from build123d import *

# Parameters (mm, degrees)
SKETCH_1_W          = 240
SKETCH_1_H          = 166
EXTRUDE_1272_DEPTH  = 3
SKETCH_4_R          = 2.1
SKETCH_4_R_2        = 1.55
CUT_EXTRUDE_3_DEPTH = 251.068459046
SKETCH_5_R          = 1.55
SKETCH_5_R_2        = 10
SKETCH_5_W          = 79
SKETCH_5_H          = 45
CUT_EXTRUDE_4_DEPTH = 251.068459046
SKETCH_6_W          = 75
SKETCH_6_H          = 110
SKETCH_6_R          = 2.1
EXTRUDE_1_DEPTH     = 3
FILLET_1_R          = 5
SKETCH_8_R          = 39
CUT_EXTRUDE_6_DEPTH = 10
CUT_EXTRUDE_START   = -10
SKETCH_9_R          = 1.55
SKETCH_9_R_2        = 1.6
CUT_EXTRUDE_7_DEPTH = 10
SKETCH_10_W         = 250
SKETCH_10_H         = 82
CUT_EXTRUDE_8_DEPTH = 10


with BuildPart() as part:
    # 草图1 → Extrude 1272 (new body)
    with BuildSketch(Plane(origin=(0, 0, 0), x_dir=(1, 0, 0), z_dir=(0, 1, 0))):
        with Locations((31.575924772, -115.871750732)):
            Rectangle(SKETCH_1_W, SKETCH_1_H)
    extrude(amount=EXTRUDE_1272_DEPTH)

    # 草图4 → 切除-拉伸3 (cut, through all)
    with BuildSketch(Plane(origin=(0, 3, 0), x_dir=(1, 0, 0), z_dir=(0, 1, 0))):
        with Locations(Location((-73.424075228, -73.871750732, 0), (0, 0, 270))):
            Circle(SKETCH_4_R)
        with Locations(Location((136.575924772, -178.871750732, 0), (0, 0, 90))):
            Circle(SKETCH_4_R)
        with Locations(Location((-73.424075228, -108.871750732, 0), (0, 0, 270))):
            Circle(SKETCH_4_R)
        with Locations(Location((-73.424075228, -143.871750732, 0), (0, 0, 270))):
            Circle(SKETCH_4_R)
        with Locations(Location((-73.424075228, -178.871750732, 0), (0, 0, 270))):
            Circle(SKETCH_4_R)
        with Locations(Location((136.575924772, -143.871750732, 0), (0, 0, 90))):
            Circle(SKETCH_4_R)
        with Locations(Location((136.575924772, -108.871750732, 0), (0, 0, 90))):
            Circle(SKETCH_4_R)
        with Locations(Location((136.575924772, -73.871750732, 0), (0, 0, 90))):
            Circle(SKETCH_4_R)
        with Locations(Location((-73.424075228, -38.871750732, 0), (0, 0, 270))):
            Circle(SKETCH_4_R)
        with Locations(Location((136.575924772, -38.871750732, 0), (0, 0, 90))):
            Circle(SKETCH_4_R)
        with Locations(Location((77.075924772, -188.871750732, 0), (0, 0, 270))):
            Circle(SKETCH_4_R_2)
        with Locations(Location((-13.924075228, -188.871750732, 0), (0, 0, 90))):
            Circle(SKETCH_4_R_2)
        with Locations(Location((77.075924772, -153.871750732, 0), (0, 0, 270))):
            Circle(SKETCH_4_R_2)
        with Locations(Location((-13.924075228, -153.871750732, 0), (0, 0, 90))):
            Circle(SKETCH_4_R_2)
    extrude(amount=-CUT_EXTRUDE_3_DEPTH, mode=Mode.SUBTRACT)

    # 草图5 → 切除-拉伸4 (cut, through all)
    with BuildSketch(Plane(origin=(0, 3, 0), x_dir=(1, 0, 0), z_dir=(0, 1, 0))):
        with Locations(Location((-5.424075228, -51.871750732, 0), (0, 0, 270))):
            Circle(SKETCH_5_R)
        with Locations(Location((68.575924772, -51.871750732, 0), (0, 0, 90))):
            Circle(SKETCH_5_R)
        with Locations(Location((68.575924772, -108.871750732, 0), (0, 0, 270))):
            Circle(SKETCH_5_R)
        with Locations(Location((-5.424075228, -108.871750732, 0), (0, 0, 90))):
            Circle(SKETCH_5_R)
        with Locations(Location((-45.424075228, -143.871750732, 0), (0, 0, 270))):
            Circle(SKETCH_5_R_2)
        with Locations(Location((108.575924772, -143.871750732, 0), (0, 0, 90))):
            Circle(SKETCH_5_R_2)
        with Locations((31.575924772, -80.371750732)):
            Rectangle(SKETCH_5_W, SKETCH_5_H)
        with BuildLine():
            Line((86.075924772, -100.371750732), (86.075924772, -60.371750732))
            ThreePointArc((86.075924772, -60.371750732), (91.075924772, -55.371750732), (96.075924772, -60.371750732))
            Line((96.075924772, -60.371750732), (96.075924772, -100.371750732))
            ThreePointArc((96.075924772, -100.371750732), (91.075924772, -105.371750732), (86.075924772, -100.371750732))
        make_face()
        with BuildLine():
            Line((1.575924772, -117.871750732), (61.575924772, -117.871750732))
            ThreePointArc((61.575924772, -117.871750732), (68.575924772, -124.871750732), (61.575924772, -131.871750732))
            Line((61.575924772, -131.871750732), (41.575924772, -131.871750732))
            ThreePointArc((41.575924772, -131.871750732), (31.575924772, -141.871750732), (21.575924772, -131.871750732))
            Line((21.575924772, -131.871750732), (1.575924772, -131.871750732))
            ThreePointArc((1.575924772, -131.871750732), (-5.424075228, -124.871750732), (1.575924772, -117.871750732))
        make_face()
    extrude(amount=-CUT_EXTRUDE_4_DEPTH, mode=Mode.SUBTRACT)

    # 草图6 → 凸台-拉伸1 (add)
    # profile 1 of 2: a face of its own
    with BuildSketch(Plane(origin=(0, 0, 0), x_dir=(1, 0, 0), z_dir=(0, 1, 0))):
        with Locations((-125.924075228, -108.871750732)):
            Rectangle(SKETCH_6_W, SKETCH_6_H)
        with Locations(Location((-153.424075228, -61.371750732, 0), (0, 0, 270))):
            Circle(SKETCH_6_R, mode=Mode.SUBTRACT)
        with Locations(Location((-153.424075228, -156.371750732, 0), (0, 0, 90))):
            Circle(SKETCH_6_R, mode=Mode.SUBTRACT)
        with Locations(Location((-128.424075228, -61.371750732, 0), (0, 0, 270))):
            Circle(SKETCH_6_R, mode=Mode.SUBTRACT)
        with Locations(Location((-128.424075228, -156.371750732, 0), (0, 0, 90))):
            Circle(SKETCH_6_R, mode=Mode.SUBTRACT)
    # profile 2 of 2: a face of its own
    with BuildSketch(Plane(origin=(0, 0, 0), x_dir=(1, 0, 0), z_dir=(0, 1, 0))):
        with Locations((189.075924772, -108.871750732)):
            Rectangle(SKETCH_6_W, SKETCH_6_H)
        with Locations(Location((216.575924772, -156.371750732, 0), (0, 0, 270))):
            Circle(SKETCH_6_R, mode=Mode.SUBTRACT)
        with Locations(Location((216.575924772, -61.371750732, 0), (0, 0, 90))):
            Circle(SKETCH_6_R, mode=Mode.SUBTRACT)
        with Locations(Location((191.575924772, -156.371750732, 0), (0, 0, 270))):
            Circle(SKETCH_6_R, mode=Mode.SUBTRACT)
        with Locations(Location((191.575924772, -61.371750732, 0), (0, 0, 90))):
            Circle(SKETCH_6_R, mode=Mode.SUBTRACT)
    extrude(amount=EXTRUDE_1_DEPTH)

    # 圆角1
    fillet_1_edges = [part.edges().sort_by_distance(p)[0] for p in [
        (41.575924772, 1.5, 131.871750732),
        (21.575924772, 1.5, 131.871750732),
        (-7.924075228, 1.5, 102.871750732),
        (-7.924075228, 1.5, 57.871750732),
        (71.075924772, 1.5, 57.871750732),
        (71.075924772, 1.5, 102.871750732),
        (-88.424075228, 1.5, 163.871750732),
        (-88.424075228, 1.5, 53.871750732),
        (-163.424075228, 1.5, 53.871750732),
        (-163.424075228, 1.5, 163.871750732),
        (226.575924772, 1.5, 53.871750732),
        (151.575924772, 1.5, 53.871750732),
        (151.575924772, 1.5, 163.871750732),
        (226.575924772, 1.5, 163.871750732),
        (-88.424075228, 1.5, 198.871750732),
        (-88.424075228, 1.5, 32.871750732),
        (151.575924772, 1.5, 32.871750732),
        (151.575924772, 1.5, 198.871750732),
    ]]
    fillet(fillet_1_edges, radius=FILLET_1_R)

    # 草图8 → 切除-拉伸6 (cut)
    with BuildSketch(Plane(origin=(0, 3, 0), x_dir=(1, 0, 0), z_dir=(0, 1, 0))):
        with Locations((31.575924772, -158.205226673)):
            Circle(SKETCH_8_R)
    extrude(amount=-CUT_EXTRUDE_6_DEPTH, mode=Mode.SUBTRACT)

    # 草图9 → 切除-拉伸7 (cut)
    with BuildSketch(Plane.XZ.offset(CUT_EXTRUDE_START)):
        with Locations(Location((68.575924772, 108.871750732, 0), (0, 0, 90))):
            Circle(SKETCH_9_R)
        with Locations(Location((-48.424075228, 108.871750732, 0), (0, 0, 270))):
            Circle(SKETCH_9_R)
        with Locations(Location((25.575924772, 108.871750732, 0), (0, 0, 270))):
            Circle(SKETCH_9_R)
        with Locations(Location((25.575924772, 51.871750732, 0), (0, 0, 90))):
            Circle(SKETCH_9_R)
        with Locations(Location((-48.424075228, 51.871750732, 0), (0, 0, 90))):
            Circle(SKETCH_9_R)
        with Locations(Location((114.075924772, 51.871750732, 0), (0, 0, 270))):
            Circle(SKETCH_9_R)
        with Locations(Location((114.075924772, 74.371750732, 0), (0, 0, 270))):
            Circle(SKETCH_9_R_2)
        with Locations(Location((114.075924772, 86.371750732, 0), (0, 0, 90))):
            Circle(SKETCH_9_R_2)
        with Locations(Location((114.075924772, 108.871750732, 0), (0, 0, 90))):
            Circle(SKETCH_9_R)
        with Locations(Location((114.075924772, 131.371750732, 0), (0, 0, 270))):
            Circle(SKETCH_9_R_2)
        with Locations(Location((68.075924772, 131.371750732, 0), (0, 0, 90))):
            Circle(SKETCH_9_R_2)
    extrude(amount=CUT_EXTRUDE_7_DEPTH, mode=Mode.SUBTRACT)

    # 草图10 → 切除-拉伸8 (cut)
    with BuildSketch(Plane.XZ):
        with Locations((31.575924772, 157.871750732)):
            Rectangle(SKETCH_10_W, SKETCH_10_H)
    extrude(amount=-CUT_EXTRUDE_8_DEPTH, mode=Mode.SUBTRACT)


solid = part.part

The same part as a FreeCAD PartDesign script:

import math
import FreeCAD as App
import Part
import Sketcher

V = App.Vector


def edges_at(feature, points):
    """Names of the edges that pass closest to the given points."""
    edges = feature.Shape.Edges
    near = lambda p: min(range(len(edges)), key=lambda i: edges[i].distToShape(Part.Vertex(*p))[0])
    return sorted({f"Edge{near(p) + 1}" for p in points})

doc = App.newDocument("Part")
body = doc.addObject("PartDesign::Body", "Body")

# Sketch on XZ plane
sketch1 = doc.addObject("Sketcher::SketchObject", "Sketch")
body.addObject(sketch1)
sketch1.AttachmentSupport = (doc.XZ_Plane, [""])
sketch1.MapMode = "FlatFace"
sketch1.addGeometry([
    Part.LineSegment(V(-88.424075, 32.871751, 0), V(-88.424075, 198.871751, 0)),
    Part.LineSegment(V(-88.424075, 198.871751, 0), V(151.575925, 198.871751, 0)),
    Part.LineSegment(V(151.575925, 198.871751, 0), V(151.575925, 32.871751, 0)),
    Part.LineSegment(V(151.575925, 32.871751, 0), V(-88.424075, 32.871751, 0)),
], False)
sketch1.addConstraint([
    Sketcher.Constraint("Coincident", 0, 2, 1, 1),
    Sketcher.Constraint("Coincident", 1, 2, 2, 1),
    Sketcher.Constraint("Coincident", 2, 2, 3, 1),
    Sketcher.Constraint("Coincident", 3, 2, 0, 1),
    Sketcher.Constraint("Vertical", 0),
    Sketcher.Constraint("Horizontal", 1),
    Sketcher.Constraint("Vertical", 2),
    Sketcher.Constraint("Horizontal", 3),
    Sketcher.Constraint("DistanceX", 1, 1, 1, 2, 240.0),
    Sketcher.Constraint("DistanceY", 0, 1, 0, 2, 166.0),
    Sketcher.Constraint("DistanceY", -1, 1, 0, 2, 198.871751),
    Sketcher.Constraint("DistanceX", 0, 2, -1, 1, 88.424075),
])
pad1 = doc.addObject("PartDesign::Pad", "Pad")
body.addObject(pad1)
pad1.Profile = sketch1
pad1.Length = 3
pad1.Reversed = True

# Sketch on XZ plane
sketch2 = doc.addObject("Sketcher::SketchObject", "Sketch001")
body.addObject(sketch2)
sketch2.AttachmentSupport = (doc.XZ_Plane, [""])
sketch2.MapMode = "FlatFace"
sketch2.AttachmentOffset = App.Placement(V(0, 0, -3), App.Rotation())
sketch2.addGeometry([
    Part.Circle(V(-73.424075, 73.871751, 0), V(0, 0, 1), 2.1),  # 0
    Part.Circle(V(136.575925, 178.871751, 0), V(0, 0, 1), 2.1),  # 1
    Part.Circle(V(-73.424075, 108.871751, 0), V(0, 0, 1), 2.1),  # 2
    Part.Circle(V(-73.424075, 143.871751, 0), V(0, 0, 1), 2.1),  # 3
    Part.Circle(V(-73.424075, 178.871751, 0), V(0, 0, 1), 2.1),  # 4
    Part.Circle(V(136.575925, 143.871751, 0), V(0, 0, 1), 2.1),  # 5
    Part.Circle(V(136.575925, 108.871751, 0), V(0, 0, 1), 2.1),  # 6
    Part.Circle(V(136.575925, 73.871751, 0), V(0, 0, 1), 2.1),  # 7
    Part.Circle(V(-73.424075, 38.871751, 0), V(0, 0, 1), 2.1),  # 8
    Part.Circle(V(136.575925, 38.871751, 0), V(0, 0, 1), 2.1),  # 9
    Part.Circle(V(77.075925, 188.871751, 0), V(0, 0, 1), 1.55),  # 10
    Part.Circle(V(-13.924075, 188.871751, 0), V(0, 0, 1), 1.55),  # 11
    Part.Circle(V(77.075925, 153.871751, 0), V(0, 0, 1), 1.55),  # 12
    Part.Circle(V(-13.924075, 153.871751, 0), V(0, 0, 1), 1.55),  # 13
], False)
sketch2.addConstraint([
    Sketcher.Constraint("Equal", 0, 1),
    Sketcher.Constraint("Equal", 1, 2),
    Sketcher.Constraint("Equal", 2, 3),
    Sketcher.Constraint("Equal", 3, 4),
    Sketcher.Constraint("Equal", 4, 5),
    Sketcher.Constraint("Equal", 5, 6),
    Sketcher.Constraint("Equal", 6, 7),
    Sketcher.Constraint("Equal", 7, 8),
    Sketcher.Constraint("Equal", 8, 9),
    Sketcher.Constraint("Equal", 10, 11),
    Sketcher.Constraint("Equal", 11, 12),
    Sketcher.Constraint("Equal", 12, 13),
    Sketcher.Constraint("Horizontal", 1, 3, 4, 3),
    Sketcher.Constraint("Horizontal", 3, 3, 5, 3),
    Sketcher.Constraint("Horizontal", 2, 3, 6, 3),
    Sketcher.Constraint("Horizontal", 0, 3, 7, 3),
    Sketcher.Constraint("Horizontal", 8, 3, 9, 3),
    Sketcher.Constraint("Horizontal", 10, 3, 11, 3),
    Sketcher.Constraint("Horizontal", 12, 3, 13, 3),
    Sketcher.Constraint("Vertical", 0, 3, 2, 3),
    Sketcher.Constraint("Vertical", 2, 3, 3, 3),
    Sketcher.Constraint("Vertical", 3, 3, 4, 3),
    Sketcher.Constraint("Vertical", 1, 3, 5, 3),
    Sketcher.Constraint("Vertical", 5, 3, 6, 3),
    Sketcher.Constraint("Vertical", 6, 3, 7, 3),
    Sketcher.Constraint("Vertical", 4, 3, 8, 3),
    Sketcher.Constraint("Vertical", 7, 3, 9, 3),
    Sketcher.Constraint("Vertical", 10, 3, 12, 3),
    Sketcher.Constraint("Vertical", 11, 3, 13, 3),
    Sketcher.Constraint("Diameter", 0, 4.2),
    Sketcher.Constraint("Diameter", 10, 3.1),
    Sketcher.Constraint("DistanceX", 0, 3, 1, 3, 210.0),
    Sketcher.Constraint("DistanceY", 0, 3, 1, 3, 105.0),
    Sketcher.Constraint("DistanceY", 0, 3, 2, 3, 35.0),
    Sketcher.Constraint("DistanceY", 2, 3, 3, 3, 35.0),
    Sketcher.Constraint("DistanceY", 8, 3, 0, 3, 35.0),
    Sketcher.Constraint("DistanceY", 1, 3, 10, 3, 10.0),
    Sketcher.Constraint("DistanceX", 11, 3, 10, 3, 91.0),
    Sketcher.Constraint("DistanceY", 12, 3, 10, 3, 35.0),
    Sketcher.Constraint("DistanceX", 10, 3, 1, 3, 59.5),
    Sketcher.Constraint("DistanceY", -1, 1, 0, 3, 73.871751),
    Sketcher.Constraint("DistanceX", 0, 3, -1, 1, 73.424075),
])
pocket1 = doc.addObject("PartDesign::Pocket", "Pocket")
body.addObject(pocket1)
pocket1.Profile = sketch2
pocket1.Type = "ThroughAll"
pocket1.Reversed = True

# Sketch on XZ plane
sketch3 = doc.addObject("Sketcher::SketchObject", "Sketch002")
body.addObject(sketch3)
sketch3.AttachmentSupport = (doc.XZ_Plane, [""])
sketch3.MapMode = "FlatFace"
sketch3.AttachmentOffset = App.Placement(V(0, 0, -3), App.Rotation())
sketch3.addGeometry([
    Part.Circle(V(-5.424075, 51.871751, 0), V(0, 0, 1), 1.55),  # 0
    Part.Circle(V(68.575925, 51.871751, 0), V(0, 0, 1), 1.55),  # 1
    Part.Circle(V(68.575925, 108.871751, 0), V(0, 0, 1), 1.55),  # 2
    Part.Circle(V(-5.424075, 108.871751, 0), V(0, 0, 1), 1.55),  # 3
    Part.Circle(V(-45.424075, 143.871751, 0), V(0, 0, 1), 10),  # 4
    Part.Circle(V(108.575925, 143.871751, 0), V(0, 0, 1), 10),  # 5
    Part.LineSegment(V(-7.924075, 57.871751, 0), V(-7.924075, 102.871751, 0)),  # 6
    Part.LineSegment(V(-7.924075, 102.871751, 0), V(71.075925, 102.871751, 0)),  # 7
    Part.LineSegment(V(71.075925, 102.871751, 0), V(71.075925, 57.871751, 0)),  # 8
    Part.LineSegment(V(71.075925, 57.871751, 0), V(-7.924075, 57.871751, 0)),  # 9
    Part.LineSegment(V(86.075925, 60.371751, 0), V(86.075925, 100.371751, 0)),  # 10
    Part.ArcOfCircle(Part.Circle(V(91.075925, 100.371751, 0), V(0, 0, 1), 5), math.radians(0), math.radians(180)),  # 11
    Part.LineSegment(V(96.075925, 100.371751, 0), V(96.075925, 60.371751, 0)),  # 12
    Part.ArcOfCircle(Part.Circle(V(91.075925, 60.371751, 0), V(0, 0, 1), 5), math.radians(180), math.radians(360)),  # 13
    Part.LineSegment(V(61.575925, 117.871751, 0), V(1.575925, 117.871751, 0)),  # 14
    Part.ArcOfCircle(Part.Circle(V(1.575925, 124.871751, 0), V(0, 0, 1), 7), math.radians(90), math.radians(270)),  # 15
    Part.LineSegment(V(1.575925, 131.871751, 0), V(21.575925, 131.871751, 0)),  # 16
    Part.ArcOfCircle(Part.Circle(V(31.575925, 131.871751, 0), V(0, 0, 1), 10), math.radians(0), math.radians(180)),  # 17
    Part.LineSegment(V(41.575925, 131.871751, 0), V(61.575925, 131.871751, 0)),  # 18
    Part.ArcOfCircle(Part.Circle(V(61.575925, 124.871751, 0), V(0, 0, 1), 7), math.radians(-90), math.radians(90)),  # 19
], False)
sketch3.addConstraint([
    Sketcher.Constraint("Coincident", 6, 2, 7, 1),
    Sketcher.Constraint("Coincident", 7, 2, 8, 1),
    Sketcher.Constraint("Coincident", 8, 2, 9, 1),
    Sketcher.Constraint("Coincident", 9, 2, 6, 1),
    Sketcher.Constraint("Tangent", 10, 2, 11, 2),
    Sketcher.Constraint("Tangent", 11, 1, 12, 1),
    Sketcher.Constraint("Tangent", 12, 2, 13, 2),
    Sketcher.Constraint("Tangent", 13, 1, 10, 1),
    Sketcher.Constraint("Tangent", 14, 2, 15, 2),
    Sketcher.Constraint("Tangent", 15, 1, 16, 1),
    Sketcher.Constraint("Coincident", 16, 2, 17, 2),
    Sketcher.Constraint("Coincident", 17, 1, 18, 1),
    Sketcher.Constraint("Tangent", 18, 2, 19, 2),
    Sketcher.Constraint("Tangent", 19, 1, 14, 1),
    Sketcher.Constraint("Vertical", 6),
    Sketcher.Constraint("Horizontal", 7),
    Sketcher.Constraint("Vertical", 8),
    Sketcher.Constraint("Horizontal", 9),
    Sketcher.Constraint("Vertical", 10),
    Sketcher.Constraint("Vertical", 12),
    Sketcher.Constraint("Horizontal", 14),
    Sketcher.Constraint("Horizontal", 16),
    Sketcher.Constraint("Horizontal", 18),
    Sketcher.Constraint("Equal", 0, 1),
    Sketcher.Constraint("Equal", 1, 2),
    Sketcher.Constraint("Equal", 2, 3),
    Sketcher.Constraint("Equal", 4, 5),
    Sketcher.Constraint("Equal", 5, 17),
    Sketcher.Constraint("Equal", 15, 19),
    Sketcher.Constraint("Horizontal", 0, 3, 1, 3),
    Sketcher.Constraint("Horizontal", 2, 3, 3, 3),
    Sketcher.Constraint("Horizontal", 4, 3, 5, 3),
    Sketcher.Constraint("Horizontal", 17, 3, 15, 1),
    Sketcher.Constraint("Vertical", 1, 3, 2, 3),
    Sketcher.Constraint("Vertical", 0, 3, 3, 3),
    Sketcher.Constraint("Equal", 16, 18),
    Sketcher.Constraint("Diameter", 4, 20.0),
    Sketcher.Constraint("Radius", 11, 5.0),
    Sketcher.Constraint("Radius", 15, 7.0),
    Sketcher.Constraint("Diameter", 0, 3.1),
    Sketcher.Constraint("DistanceX", 7, 1, 7, 2, 79.0),
    Sketcher.Constraint("DistanceX", 14, 2, 14, 1, 60.0),
    Sketcher.Constraint("DistanceY", 6, 1, 6, 2, 45.0),
    Sketcher.Constraint("DistanceY", 10, 1, 10, 2, 40.0),
    Sketcher.Constraint("DistanceX", 0, 3, 1, 3, 74.0),
    Sketcher.Constraint("DistanceY", 1, 3, 2, 3, 57.0),
    Sketcher.Constraint("DistanceX", 4, 3, 3, 3, 40.0),
    Sketcher.Constraint("DistanceY", 3, 3, 4, 3, 35.0),
    Sketcher.Constraint("DistanceX", 2, 3, 5, 3, 40.0),
    Sketcher.Constraint("DistanceX", 3, 3, 15, 3, 7.0),
    Sketcher.Constraint("DistanceY", 3, 3, 15, 3, 16.0),
    Sketcher.Constraint("DistanceY", 6, 2, 3, 3, 6.0),
    Sketcher.Constraint("DistanceX", 7, 2, 11, 3, 20.0),
    Sketcher.Constraint("DistanceX", 2, 3, 11, 3, 22.5),
    Sketcher.Constraint("DistanceY", 11, 3, 2, 3, 8.5),
    Sketcher.Constraint("DistanceY", -1, 1, 0, 3, 51.871751),
    Sketcher.Constraint("DistanceX", 0, 3, -1, 1, 5.424075),
])
pocket2 = doc.addObject("PartDesign::Pocket", "Pocket001")
body.addObject(pocket2)
pocket2.Profile = sketch3
pocket2.Type = "ThroughAll"
pocket2.Reversed = True

# Sketch on XZ plane
sketch4 = doc.addObject("Sketcher::SketchObject", "Sketch003")
body.addObject(sketch4)
sketch4.AttachmentSupport = (doc.XZ_Plane, [""])
sketch4.MapMode = "FlatFace"
sketch4.addGeometry([
    Part.LineSegment(V(-163.424075, 53.871751, 0), V(-163.424075, 163.871751, 0)),  # 0
    Part.LineSegment(V(-163.424075, 163.871751, 0), V(-88.424075, 163.871751, 0)),  # 1
    Part.LineSegment(V(-88.424075, 163.871751, 0), V(-88.424075, 53.871751, 0)),  # 2
    Part.LineSegment(V(-88.424075, 53.871751, 0), V(-163.424075, 53.871751, 0)),  # 3
    Part.Circle(V(-153.424075, 156.371751, 0), V(0, 0, 1), 2.1),  # 4
    Part.Circle(V(-128.424075, 156.371751, 0), V(0, 0, 1), 2.1),  # 5
    Part.Circle(V(-153.424075, 61.371751, 0), V(0, 0, 1), 2.1),  # 6
    Part.Circle(V(-128.424075, 61.371751, 0), V(0, 0, 1), 2.1),  # 7
    Part.LineSegment(V(151.575925, 53.871751, 0), V(151.575925, 163.871751, 0)),  # 8
    Part.LineSegment(V(151.575925, 163.871751, 0), V(226.575925, 163.871751, 0)),  # 9
    Part.LineSegment(V(226.575925, 163.871751, 0), V(226.575925, 53.871751, 0)),  # 10
    Part.LineSegment(V(226.575925, 53.871751, 0), V(151.575925, 53.871751, 0)),  # 11
    Part.Circle(V(191.575925, 156.371751, 0), V(0, 0, 1), 2.1),  # 12
    Part.Circle(V(216.575925, 156.371751, 0), V(0, 0, 1), 2.1),  # 13
    Part.Circle(V(191.575925, 61.371751, 0), V(0, 0, 1), 2.1),  # 14
    Part.Circle(V(216.575925, 61.371751, 0), V(0, 0, 1), 2.1),  # 15
], False)
sketch4.addConstraint([
    Sketcher.Constraint("Coincident", 0, 2, 1, 1),
    Sketcher.Constraint("Coincident", 1, 2, 2, 1),
    Sketcher.Constraint("Coincident", 2, 2, 3, 1),
    Sketcher.Constraint("Coincident", 3, 2, 0, 1),
    Sketcher.Constraint("Coincident", 8, 2, 9, 1),
    Sketcher.Constraint("Coincident", 9, 2, 10, 1),
    Sketcher.Constraint("Coincident", 10, 2, 11, 1),
    Sketcher.Constraint("Coincident", 11, 2, 8, 1),
    Sketcher.Constraint("Vertical", 0),
    Sketcher.Constraint("Horizontal", 1),
    Sketcher.Constraint("Vertical", 2),
    Sketcher.Constraint("Horizontal", 3),
    Sketcher.Constraint("Vertical", 8),
    Sketcher.Constraint("Horizontal", 9),
    Sketcher.Constraint("Vertical", 10),
    Sketcher.Constraint("Horizontal", 11),
    Sketcher.Constraint("Equal", 4, 5),
    Sketcher.Constraint("Equal", 5, 6),
    Sketcher.Constraint("Equal", 6, 7),
    Sketcher.Constraint("Equal", 7, 12),
    Sketcher.Constraint("Equal", 12, 13),
    Sketcher.Constraint("Equal", 13, 14),
    Sketcher.Constraint("Equal", 14, 15),
    Sketcher.Constraint("Horizontal", 4, 3, 5, 3),
    Sketcher.Constraint("Horizontal", 6, 3, 7, 3),
    Sketcher.Constraint("Horizontal", 5, 3, 12, 3),
    Sketcher.Constraint("Horizontal", 12, 3, 13, 3),
    Sketcher.Constraint("Horizontal", 7, 3, 14, 3),
    Sketcher.Constraint("Horizontal", 14, 3, 15, 3),
    Sketcher.Constraint("Horizontal", 1, 2, 8, 2),
    Sketcher.Constraint("Horizontal", 3, 2, 10, 2),
    Sketcher.Constraint("Vertical", 4, 3, 6, 3),
    Sketcher.Constraint("Vertical", 5, 3, 7, 3),
    Sketcher.Constraint("Vertical", 12, 3, 14, 3),
    Sketcher.Constraint("Vertical", 13, 3, 15, 3),
    Sketcher.Constraint("Equal", 3, 9),
    Sketcher.Constraint("Diameter", 4, 4.2),
    Sketcher.Constraint("DistanceX", 1, 1, 1, 2, 75.0),
    Sketcher.Constraint("DistanceY", 0, 1, 0, 2, 110.0),
    Sketcher.Constraint("DistanceX", 4, 3, 5, 3, 25.0),
    Sketcher.Constraint("DistanceY", 6, 3, 4, 3, 95.0),
    Sketcher.Constraint("DistanceX", 5, 3, 12, 3, 320.0),
    Sketcher.Constraint("DistanceX", 12, 3, 13, 3, 25.0),
    Sketcher.Constraint("DistanceX", 0, 2, 4, 3, 10.0),
    Sketcher.Constraint("DistanceX", 8, 2, 12, 3, 40.0),
    Sketcher.Constraint("DistanceY", 4, 3, 0, 2, 7.5),
    Sketcher.Constraint("DistanceY", -1, 1, 4, 3, 156.371751),
    Sketcher.Constraint("DistanceX", 4, 3, -1, 1, 153.424075),
])
pad2 = doc.addObject("PartDesign::Pad", "Pad001")
body.addObject(pad2)
pad2.Profile = sketch4
pad2.Length = 3
pad2.Reversed = True
doc.recompute()

fillet = doc.addObject("PartDesign::Fillet", "Fillet")
body.addObject(fillet)
fillet.Base = (pad2, edges_at(pad2, [
    (41.576, 1.5, 131.872),
    (21.576, 1.5, 131.872),
    (-7.924, 1.5, 102.872),
    (-7.924, 1.5, 57.872),
    (71.076, 1.5, 57.872),
    (71.076, 1.5, 102.872),
    (-88.424, 1.5, 163.872),
    (-88.424, 1.5, 53.872),
    (-163.424, 1.5, 53.872),
    (-163.424, 1.5, 163.872),
    (226.576, 1.5, 53.872),
    (151.576, 1.5, 53.872),
    (151.576, 1.5, 163.872),
    (226.576, 1.5, 163.872),
    (-88.424, 1.5, 198.872),
    (-88.424, 1.5, 32.872),
    (151.576, 1.5, 32.872),
    (151.576, 1.5, 198.872),
]))
fillet.Radius = 5

# Sketch on XZ plane
sketch5 = doc.addObject("Sketcher::SketchObject", "Sketch004")
body.addObject(sketch5)
sketch5.AttachmentSupport = (doc.XZ_Plane, [""])
sketch5.MapMode = "FlatFace"
sketch5.AttachmentOffset = App.Placement(V(0, 0, -3), App.Rotation())
sketch5.addGeometry(Part.Circle(V(31.575925, 158.205227, 0), V(0, 0, 1), 39), False)
sketch5.addConstraint([
    Sketcher.Constraint("Diameter", 0, 78.0),
    Sketcher.Constraint("DistanceX", -1, 1, 0, 3, 31.575925),
    Sketcher.Constraint("DistanceY", -1, 1, 0, 3, 158.205227),
])
pocket3 = doc.addObject("PartDesign::Pocket", "Pocket002")
body.addObject(pocket3)
pocket3.Profile = sketch5
pocket3.Length = 10
pocket3.Reversed = True

# Sketch on XZ plane
sketch6 = doc.addObject("Sketcher::SketchObject", "Sketch005")
body.addObject(sketch6)
sketch6.AttachmentSupport = (doc.XZ_Plane, [""])
sketch6.MapMode = "FlatFace"
sketch6.AttachmentOffset = App.Placement(V(0, 0, -10), App.Rotation())
sketch6.addGeometry([
    Part.Circle(V(68.575925, 108.871751, 0), V(0, 0, 1), 1.55),  # 0
    Part.Circle(V(-48.424075, 108.871751, 0), V(0, 0, 1), 1.55),  # 1
    Part.Circle(V(25.575925, 108.871751, 0), V(0, 0, 1), 1.55),  # 2
    Part.Circle(V(25.575925, 51.871751, 0), V(0, 0, 1), 1.55),  # 3
    Part.Circle(V(-48.424075, 51.871751, 0), V(0, 0, 1), 1.55),  # 4
    Part.Circle(V(114.075925, 51.871751, 0), V(0, 0, 1), 1.55),  # 5
    Part.Circle(V(114.075925, 74.371751, 0), V(0, 0, 1), 1.6),  # 6
    Part.Circle(V(114.075925, 86.371751, 0), V(0, 0, 1), 1.6),  # 7
    Part.Circle(V(114.075925, 108.871751, 0), V(0, 0, 1), 1.55),  # 8
    Part.Circle(V(114.075925, 131.371751, 0), V(0, 0, 1), 1.6),  # 9
    Part.Circle(V(68.075925, 131.371751, 0), V(0, 0, 1), 1.6),  # 10
], False)
sketch6.addConstraint([
    Sketcher.Constraint("Equal", 0, 1),
    Sketcher.Constraint("Equal", 1, 2),
    Sketcher.Constraint("Equal", 2, 3),
    Sketcher.Constraint("Equal", 3, 4),
    Sketcher.Constraint("Equal", 4, 5),
    Sketcher.Constraint("Equal", 6, 7),
    Sketcher.Constraint("Equal", 5, 8),
    Sketcher.Constraint("Equal", 7, 9),
    Sketcher.Constraint("Equal", 9, 10),
    Sketcher.Constraint("Horizontal", 0, 3, 1, 3),
    Sketcher.Constraint("Horizontal", 1, 3, 2, 3),
    Sketcher.Constraint("Horizontal", 3, 3, 4, 3),
    Sketcher.Constraint("Horizontal", 4, 3, 5, 3),
    Sketcher.Constraint("Horizontal", 2, 3, 8, 3),
    Sketcher.Constraint("Horizontal", 9, 3, 10, 3),
    Sketcher.Constraint("Vertical", 2, 3, 3, 3),
    Sketcher.Constraint("Vertical", 1, 3, 4, 3),
    Sketcher.Constraint("Vertical", 5, 3, 6, 3),
    Sketcher.Constraint("Vertical", 6, 3, 7, 3),
    Sketcher.Constraint("Vertical", 7, 3, 8, 3),
    Sketcher.Constraint("Vertical", 8, 3, 9, 3),
    Sketcher.Constraint("Diameter", 0, 3.1),
    Sketcher.Constraint("Diameter", 6, 3.2),
    Sketcher.Constraint("DistanceX", 1, 3, 0, 3, 117.0),
    Sketcher.Constraint("DistanceX", 2, 3, 0, 3, 43.0),
    Sketcher.Constraint("DistanceY", 3, 3, 2, 3, 57.0),
    Sketcher.Constraint("DistanceY", 6, 3, 7, 3, 12.0),
    Sketcher.Constraint("DistanceY", 7, 3, 9, 3, 45.0),
    Sketcher.Constraint("DistanceX", 10, 3, 9, 3, 46.0),
    Sketcher.Constraint("DistanceX", 0, 3, 5, 3, 45.5),
    Sketcher.Constraint("DistanceY", 5, 3, 6, 3, 22.5),
    Sketcher.Constraint("DistanceY", -1, 1, 0, 3, 108.871751),
    Sketcher.Constraint("DistanceX", -1, 1, 0, 3, 68.575925),
])
pocket4 = doc.addObject("PartDesign::Pocket", "Pocket003")
body.addObject(pocket4)
pocket4.Profile = sketch6
pocket4.Length = 10
pocket4.Reversed = True

# Sketch on XZ plane
sketch7 = doc.addObject("Sketcher::SketchObject", "Sketch006")
body.addObject(sketch7)
sketch7.AttachmentSupport = (doc.XZ_Plane, [""])
sketch7.MapMode = "FlatFace"
sketch7.addGeometry([
    Part.LineSegment(V(-93.424075, 198.871751, 0), V(-93.424075, 116.871751, 0)),
    Part.LineSegment(V(-93.424075, 116.871751, 0), V(156.575925, 116.871751, 0)),
    Part.LineSegment(V(156.575925, 116.871751, 0), V(156.575925, 198.871751, 0)),
    Part.LineSegment(V(156.575925, 198.871751, 0), V(-93.424075, 198.871751, 0)),
], False)
sketch7.addConstraint([
    Sketcher.Constraint("Coincident", 0, 2, 1, 1),
    Sketcher.Constraint("Coincident", 1, 2, 2, 1),
    Sketcher.Constraint("Coincident", 2, 2, 3, 1),
    Sketcher.Constraint("Coincident", 3, 2, 0, 1),
    Sketcher.Constraint("Vertical", 0),
    Sketcher.Constraint("Horizontal", 1),
    Sketcher.Constraint("Vertical", 2),
    Sketcher.Constraint("Horizontal", 3),
    Sketcher.Constraint("DistanceX", 1, 1, 1, 2, 250.0),
    Sketcher.Constraint("DistanceY", 0, 2, 0, 1, 82.0),
    Sketcher.Constraint("DistanceY", -1, 1, 0, 2, 116.871751),
    Sketcher.Constraint("DistanceX", 0, 2, -1, 1, 93.424075),
])
pocket5 = doc.addObject("PartDesign::Pocket", "Pocket004")
body.addObject(pocket5)
pocket5.Profile = sketch7
pocket5.Length = 10

doc.recompute()
